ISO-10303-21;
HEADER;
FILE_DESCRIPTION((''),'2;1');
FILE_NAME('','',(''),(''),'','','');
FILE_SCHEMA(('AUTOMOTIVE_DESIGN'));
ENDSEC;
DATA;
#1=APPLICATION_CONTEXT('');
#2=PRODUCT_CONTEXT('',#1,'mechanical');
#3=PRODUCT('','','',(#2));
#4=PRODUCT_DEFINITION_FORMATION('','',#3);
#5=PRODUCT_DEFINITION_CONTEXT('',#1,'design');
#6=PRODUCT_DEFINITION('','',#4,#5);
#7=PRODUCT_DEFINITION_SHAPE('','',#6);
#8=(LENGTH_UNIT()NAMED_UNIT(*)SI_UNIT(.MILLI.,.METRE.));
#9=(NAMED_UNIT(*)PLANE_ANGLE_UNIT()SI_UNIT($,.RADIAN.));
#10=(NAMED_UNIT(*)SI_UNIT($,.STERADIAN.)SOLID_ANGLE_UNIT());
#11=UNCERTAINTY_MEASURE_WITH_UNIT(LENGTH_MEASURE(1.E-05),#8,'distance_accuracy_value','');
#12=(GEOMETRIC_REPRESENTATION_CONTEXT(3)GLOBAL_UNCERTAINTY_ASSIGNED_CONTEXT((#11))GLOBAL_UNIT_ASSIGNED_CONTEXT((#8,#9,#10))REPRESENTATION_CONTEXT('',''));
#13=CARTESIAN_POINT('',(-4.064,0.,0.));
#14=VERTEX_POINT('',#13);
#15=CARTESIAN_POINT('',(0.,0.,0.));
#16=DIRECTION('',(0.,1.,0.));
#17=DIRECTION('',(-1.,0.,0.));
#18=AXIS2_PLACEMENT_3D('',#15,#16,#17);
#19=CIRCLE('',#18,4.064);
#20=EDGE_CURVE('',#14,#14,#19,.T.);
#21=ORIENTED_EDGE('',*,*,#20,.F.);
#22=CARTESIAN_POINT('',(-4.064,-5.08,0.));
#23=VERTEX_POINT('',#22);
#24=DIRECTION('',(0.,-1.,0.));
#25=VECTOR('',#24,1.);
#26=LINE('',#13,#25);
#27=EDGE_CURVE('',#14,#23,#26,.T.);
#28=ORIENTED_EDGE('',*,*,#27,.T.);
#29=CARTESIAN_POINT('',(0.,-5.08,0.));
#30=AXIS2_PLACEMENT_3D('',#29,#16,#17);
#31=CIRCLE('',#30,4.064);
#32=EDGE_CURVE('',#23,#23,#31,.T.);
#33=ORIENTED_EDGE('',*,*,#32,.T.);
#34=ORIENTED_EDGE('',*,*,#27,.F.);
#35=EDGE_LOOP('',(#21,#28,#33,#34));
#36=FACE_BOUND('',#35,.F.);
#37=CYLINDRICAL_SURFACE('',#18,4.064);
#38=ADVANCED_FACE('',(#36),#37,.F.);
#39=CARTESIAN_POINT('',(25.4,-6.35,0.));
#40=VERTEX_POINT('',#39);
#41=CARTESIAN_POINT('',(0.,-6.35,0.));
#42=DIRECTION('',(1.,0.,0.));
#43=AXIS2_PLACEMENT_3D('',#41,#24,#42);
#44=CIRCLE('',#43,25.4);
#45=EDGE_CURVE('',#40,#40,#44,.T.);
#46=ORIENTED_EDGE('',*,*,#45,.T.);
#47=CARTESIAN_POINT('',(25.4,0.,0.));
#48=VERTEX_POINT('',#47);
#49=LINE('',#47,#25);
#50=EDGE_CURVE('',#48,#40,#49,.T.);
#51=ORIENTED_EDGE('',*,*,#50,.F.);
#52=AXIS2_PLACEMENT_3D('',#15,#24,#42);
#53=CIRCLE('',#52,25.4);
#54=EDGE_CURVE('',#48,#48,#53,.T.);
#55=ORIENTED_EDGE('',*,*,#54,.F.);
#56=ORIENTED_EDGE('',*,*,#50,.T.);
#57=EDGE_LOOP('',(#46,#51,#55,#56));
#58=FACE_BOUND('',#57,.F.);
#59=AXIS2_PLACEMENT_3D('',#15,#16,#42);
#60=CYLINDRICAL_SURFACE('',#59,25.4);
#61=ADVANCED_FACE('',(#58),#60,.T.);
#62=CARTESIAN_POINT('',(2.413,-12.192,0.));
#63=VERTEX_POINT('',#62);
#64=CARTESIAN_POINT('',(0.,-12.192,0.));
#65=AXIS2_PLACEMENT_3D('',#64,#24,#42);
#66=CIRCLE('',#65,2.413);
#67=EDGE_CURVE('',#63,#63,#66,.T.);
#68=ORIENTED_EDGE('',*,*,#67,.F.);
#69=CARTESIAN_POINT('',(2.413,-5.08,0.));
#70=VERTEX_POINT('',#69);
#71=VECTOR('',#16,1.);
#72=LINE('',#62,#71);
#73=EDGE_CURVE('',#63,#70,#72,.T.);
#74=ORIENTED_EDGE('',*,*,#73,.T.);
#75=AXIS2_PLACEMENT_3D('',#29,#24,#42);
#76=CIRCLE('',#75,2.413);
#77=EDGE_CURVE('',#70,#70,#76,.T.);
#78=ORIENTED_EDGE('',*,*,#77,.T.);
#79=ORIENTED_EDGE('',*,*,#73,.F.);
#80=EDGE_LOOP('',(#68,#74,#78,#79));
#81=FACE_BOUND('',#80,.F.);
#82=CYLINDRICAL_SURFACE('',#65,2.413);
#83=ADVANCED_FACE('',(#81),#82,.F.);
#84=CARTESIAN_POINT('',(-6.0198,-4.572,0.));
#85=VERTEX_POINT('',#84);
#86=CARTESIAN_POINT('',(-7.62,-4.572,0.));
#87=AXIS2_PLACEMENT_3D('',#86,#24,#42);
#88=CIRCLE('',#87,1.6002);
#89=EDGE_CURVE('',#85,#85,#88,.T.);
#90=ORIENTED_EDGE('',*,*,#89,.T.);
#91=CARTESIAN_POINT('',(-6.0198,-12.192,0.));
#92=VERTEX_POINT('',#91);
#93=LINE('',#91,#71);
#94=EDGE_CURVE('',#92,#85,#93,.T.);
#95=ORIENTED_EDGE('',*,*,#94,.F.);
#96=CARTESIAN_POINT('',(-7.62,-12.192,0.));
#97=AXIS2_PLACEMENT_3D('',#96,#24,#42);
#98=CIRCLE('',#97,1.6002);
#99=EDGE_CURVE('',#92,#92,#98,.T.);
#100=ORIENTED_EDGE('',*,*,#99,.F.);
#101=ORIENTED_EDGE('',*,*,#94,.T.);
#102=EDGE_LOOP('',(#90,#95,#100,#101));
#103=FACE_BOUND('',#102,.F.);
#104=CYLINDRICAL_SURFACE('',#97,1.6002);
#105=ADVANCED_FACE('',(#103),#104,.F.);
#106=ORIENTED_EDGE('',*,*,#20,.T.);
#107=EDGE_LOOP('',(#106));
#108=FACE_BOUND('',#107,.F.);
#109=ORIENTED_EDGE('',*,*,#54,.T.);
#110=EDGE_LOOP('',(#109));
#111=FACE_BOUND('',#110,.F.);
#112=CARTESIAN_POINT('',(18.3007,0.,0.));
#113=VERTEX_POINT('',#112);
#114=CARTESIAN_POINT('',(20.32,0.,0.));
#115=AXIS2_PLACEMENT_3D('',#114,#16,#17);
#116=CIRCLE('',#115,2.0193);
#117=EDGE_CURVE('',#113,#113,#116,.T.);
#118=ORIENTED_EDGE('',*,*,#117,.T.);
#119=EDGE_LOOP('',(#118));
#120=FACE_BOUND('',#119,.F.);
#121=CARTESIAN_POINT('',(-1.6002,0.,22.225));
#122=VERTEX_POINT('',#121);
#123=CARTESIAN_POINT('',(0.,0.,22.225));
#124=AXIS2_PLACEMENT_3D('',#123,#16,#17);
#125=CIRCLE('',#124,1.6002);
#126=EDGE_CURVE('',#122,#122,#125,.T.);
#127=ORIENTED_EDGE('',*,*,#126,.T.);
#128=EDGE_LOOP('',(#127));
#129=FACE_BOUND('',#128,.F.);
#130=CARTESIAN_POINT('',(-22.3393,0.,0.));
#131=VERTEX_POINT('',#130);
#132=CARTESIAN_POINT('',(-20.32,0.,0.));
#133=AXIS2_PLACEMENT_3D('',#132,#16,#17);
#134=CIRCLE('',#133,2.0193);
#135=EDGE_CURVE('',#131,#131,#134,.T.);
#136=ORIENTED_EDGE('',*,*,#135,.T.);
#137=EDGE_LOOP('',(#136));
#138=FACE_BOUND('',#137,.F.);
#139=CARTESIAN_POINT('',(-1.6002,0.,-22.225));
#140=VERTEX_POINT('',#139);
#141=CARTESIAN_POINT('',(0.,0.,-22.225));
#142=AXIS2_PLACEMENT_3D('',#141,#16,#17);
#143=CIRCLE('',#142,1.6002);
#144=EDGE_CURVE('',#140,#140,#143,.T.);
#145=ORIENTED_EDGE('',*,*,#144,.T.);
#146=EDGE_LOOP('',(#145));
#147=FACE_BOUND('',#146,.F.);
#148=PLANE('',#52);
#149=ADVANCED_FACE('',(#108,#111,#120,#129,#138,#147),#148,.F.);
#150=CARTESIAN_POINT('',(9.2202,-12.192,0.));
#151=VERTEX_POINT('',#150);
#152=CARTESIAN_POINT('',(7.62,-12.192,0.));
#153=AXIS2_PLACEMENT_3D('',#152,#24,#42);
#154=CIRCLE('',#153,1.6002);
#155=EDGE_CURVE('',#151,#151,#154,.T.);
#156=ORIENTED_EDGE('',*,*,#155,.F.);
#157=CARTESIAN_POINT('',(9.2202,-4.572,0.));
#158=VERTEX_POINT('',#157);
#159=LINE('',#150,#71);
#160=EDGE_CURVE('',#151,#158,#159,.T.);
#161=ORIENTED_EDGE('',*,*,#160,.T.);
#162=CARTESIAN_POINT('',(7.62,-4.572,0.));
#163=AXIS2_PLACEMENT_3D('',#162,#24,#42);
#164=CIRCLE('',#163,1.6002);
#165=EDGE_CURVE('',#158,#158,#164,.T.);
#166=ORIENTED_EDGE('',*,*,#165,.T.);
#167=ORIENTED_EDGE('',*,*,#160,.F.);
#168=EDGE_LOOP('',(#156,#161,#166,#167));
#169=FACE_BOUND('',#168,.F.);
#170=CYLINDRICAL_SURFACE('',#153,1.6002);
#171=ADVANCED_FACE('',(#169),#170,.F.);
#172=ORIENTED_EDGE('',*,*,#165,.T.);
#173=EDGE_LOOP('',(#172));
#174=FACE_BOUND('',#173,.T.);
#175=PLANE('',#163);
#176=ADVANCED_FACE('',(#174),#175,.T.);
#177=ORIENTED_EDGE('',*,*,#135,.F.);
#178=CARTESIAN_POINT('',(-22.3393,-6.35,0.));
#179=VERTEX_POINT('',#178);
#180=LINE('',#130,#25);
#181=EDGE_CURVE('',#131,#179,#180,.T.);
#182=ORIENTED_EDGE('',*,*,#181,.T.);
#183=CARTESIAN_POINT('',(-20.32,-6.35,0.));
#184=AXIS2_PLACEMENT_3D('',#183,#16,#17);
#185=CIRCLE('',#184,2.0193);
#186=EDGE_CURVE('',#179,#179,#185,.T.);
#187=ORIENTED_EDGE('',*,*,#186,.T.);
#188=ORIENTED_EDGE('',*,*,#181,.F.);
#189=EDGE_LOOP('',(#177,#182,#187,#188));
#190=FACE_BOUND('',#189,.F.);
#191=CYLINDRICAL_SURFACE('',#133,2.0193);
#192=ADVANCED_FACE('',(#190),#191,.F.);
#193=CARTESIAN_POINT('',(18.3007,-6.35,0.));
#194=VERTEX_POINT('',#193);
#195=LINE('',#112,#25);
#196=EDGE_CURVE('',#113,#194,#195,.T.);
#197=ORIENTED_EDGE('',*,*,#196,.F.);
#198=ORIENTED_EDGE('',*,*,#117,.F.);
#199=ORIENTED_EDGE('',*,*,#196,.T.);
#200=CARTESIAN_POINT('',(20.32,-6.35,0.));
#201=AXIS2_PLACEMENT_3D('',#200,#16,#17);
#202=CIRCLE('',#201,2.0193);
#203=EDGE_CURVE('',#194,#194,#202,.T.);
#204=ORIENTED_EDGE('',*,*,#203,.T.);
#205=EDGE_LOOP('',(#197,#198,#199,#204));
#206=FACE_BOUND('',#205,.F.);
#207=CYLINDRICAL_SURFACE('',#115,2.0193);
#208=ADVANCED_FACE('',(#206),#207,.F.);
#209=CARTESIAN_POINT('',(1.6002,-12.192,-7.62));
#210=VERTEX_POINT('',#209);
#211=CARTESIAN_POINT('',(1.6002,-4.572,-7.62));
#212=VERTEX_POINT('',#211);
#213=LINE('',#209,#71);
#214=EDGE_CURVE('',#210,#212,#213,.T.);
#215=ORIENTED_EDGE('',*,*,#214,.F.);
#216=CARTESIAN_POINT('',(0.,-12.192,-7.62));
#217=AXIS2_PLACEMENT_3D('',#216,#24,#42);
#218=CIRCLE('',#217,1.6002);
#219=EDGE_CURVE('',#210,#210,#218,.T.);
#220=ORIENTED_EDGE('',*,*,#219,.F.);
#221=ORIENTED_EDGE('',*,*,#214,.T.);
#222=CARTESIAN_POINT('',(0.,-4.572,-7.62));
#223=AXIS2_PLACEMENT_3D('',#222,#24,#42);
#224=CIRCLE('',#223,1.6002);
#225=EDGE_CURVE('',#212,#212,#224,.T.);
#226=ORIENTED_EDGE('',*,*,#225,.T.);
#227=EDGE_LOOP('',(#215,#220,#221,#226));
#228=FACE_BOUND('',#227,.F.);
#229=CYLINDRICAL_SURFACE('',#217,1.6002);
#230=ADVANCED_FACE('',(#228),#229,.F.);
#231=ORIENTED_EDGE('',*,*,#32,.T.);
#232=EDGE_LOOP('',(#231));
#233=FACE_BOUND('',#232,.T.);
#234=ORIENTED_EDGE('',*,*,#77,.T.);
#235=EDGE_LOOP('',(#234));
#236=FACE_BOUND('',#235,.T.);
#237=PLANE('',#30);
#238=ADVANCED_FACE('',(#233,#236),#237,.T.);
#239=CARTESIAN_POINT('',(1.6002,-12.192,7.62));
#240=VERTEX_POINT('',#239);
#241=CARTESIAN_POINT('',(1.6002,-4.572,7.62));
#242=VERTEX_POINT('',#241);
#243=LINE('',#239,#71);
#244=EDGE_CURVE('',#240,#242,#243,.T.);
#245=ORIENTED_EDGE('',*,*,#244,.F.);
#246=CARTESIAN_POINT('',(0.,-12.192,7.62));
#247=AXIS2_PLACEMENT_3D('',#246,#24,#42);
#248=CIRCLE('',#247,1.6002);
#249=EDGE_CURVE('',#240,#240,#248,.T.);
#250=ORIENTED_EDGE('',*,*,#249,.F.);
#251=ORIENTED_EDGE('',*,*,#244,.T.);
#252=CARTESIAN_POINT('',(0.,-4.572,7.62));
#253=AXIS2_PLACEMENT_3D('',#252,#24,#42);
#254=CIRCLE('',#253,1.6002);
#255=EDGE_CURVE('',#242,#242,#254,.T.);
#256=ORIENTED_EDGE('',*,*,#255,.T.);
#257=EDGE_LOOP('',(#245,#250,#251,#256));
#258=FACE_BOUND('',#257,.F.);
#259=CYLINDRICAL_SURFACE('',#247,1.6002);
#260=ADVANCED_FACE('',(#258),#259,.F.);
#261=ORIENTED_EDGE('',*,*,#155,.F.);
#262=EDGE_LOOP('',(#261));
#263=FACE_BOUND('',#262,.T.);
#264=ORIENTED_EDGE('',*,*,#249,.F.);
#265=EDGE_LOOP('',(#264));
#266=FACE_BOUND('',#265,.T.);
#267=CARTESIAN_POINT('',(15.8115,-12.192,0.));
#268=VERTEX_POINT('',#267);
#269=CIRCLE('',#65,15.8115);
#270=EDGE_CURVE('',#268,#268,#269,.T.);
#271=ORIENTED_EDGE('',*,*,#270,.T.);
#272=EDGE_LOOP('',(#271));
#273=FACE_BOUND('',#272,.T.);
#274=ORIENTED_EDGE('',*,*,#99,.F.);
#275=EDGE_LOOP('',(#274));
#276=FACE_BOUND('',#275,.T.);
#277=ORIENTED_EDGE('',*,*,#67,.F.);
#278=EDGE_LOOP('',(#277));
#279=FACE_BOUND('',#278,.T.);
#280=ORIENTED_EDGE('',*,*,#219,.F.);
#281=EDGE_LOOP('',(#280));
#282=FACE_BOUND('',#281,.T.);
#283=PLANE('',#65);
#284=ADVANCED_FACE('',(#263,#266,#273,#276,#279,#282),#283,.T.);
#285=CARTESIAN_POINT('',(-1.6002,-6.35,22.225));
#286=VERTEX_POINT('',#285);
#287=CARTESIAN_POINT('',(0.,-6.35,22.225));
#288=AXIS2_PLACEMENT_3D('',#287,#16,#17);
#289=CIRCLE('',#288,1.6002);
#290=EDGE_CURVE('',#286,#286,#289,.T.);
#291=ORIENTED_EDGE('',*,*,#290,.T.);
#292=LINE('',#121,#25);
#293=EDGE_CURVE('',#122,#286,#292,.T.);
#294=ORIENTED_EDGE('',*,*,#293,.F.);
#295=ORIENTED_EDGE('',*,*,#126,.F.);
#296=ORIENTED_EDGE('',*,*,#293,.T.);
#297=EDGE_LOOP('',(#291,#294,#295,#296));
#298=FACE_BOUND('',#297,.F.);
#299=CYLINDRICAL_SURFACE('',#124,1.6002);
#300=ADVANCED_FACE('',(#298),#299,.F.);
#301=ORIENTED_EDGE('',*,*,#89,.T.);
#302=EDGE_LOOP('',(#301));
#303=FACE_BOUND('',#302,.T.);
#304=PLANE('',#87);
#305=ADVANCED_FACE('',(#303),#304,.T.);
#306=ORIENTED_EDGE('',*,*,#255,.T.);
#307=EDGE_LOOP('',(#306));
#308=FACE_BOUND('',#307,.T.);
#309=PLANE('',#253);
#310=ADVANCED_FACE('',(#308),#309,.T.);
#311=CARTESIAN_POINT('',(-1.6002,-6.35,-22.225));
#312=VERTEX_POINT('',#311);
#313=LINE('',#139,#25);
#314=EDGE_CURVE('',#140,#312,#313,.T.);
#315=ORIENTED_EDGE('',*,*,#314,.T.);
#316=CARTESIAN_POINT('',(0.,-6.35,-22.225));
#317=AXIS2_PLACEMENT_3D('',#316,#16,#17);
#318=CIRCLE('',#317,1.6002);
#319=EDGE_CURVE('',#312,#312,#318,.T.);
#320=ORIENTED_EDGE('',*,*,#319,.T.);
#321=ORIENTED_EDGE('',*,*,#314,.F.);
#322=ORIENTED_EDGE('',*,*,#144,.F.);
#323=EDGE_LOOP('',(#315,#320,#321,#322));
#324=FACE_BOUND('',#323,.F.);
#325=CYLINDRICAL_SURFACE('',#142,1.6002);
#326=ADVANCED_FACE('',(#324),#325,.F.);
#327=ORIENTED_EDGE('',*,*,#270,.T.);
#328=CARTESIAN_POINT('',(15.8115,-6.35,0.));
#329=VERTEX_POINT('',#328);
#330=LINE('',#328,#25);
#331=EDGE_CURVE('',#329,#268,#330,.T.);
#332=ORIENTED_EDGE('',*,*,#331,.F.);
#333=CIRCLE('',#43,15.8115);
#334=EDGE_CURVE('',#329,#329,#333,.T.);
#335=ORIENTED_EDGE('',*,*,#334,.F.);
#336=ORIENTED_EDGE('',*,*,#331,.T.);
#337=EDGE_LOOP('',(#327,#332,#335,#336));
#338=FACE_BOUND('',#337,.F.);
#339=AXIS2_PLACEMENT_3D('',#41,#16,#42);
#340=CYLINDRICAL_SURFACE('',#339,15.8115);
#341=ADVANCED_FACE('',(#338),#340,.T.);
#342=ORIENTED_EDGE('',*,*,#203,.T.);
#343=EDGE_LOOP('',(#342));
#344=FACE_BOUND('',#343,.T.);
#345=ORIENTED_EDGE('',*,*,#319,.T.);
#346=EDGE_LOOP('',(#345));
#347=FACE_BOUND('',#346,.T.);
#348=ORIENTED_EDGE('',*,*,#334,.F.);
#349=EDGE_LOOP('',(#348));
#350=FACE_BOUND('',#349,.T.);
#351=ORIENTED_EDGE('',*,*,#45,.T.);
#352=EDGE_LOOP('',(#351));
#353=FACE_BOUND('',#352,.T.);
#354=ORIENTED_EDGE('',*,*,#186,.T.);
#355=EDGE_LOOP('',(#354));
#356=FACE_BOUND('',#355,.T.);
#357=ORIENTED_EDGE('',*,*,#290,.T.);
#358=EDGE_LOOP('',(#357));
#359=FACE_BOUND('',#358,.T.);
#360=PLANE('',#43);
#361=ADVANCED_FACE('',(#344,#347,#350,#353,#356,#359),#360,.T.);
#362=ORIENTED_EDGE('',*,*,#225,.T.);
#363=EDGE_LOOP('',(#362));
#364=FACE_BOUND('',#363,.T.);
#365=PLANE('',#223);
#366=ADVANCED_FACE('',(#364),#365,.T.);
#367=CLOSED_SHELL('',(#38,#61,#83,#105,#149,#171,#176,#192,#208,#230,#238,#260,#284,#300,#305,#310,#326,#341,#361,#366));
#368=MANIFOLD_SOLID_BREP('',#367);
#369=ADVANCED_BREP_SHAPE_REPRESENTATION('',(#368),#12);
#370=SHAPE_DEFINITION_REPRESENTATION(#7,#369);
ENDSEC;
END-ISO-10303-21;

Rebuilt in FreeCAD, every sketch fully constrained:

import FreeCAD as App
import Part
import Sketcher

V = App.Vector
Q = App.Units.Quantity

doc = App.newDocument("Part")
body = doc.addObject("PartDesign::Body", "Body")

# Sketch on XZ plane
sketch1 = doc.addObject("Sketcher::SketchObject", "Sketch")
body.addObject(sketch1)
sketch1.AttachmentSupport = (doc.XZ_Plane, [""])
sketch1.MapMode = "FlatFace"
sketch1.addGeometry(Part.Circle(V(0, 0, 0), V(0, 0, 1), 25), False)
sketch1.addConstraint([
    Sketcher.Constraint("Coincident", 0, 3, -1, 1),
    Sketcher.Constraint("Diameter", 0, Q("2 in")),
])
pad1 = doc.addObject("PartDesign::Pad", "Pad")
body.addObject(pad1)
pad1.Profile = sketch1
pad1.Length = Q("0.25 in")

# Sketch on XZ plane
sketch2 = doc.addObject("Sketcher::SketchObject", "Sketch001")
body.addObject(sketch2)
sketch2.AttachmentSupport = (doc.XZ_Plane, [""])
sketch2.MapMode = "FlatFace"
sketch2.AttachmentOffset = App.Placement(V(0, 0, 0.25 * 25.4), App.Rotation())
sketch2.addGeometry(Part.Circle(V(0, 0, 0), V(0, 0, 1), 16), False)
sketch2.addConstraint([
    Sketcher.Constraint("Coincident", 0, 3, -1, 1),
    Sketcher.Constraint("Diameter", 0, Q("1.245 in")),
])
pad2 = doc.addObject("PartDesign::Pad", "Pad001")
body.addObject(pad2)
pad2.Profile = sketch2
pad2.Length = Q("0.23 in")

# Sketch on XZ plane
sketch3 = doc.addObject("Sketcher::SketchObject", "Sketch002")
body.addObject(sketch3)
sketch3.AttachmentSupport = (doc.XZ_Plane, [""])
sketch3.MapMode = "FlatFace"
sketch3.AttachmentOffset = App.Placement(V(0, 0, 0.48 * 25.4), App.Rotation())
sketch3.addGeometry([
    Part.Circle(V(7.6, 0, 0), V(0, 0, 1), 1.6),  # 0
    Part.Circle(V(0, 7.6, 0), V(0, 0, 1), 1.6),  # 1
    Part.Circle(V(-7.6, 0, 0), V(0, 0, 1), 1.6),  # 2
    Part.Circle(V(0, -7.6, 0), V(0, 0, 1), 1.6),  # 3
    Part.Circle(V(0, 0, 0), V(0, 0, 1), 2.4),  # 4
], False)
sketch3.addConstraint([
    Sketcher.Constraint("Coincident", 4, 3, -1, 1),
    Sketcher.Constraint("Equal", 0, 1),
    Sketcher.Constraint("Equal", 1, 2),
    Sketcher.Constraint("Equal", 2, 3),
    Sketcher.Constraint("Symmetric", 0, 3, 2, 3, -1, 1),
    Sketcher.Constraint("Symmetric", 1, 3, 3, 3, -1, 1),
    Sketcher.Constraint("PointOnObject", 0, 3, -1),
    Sketcher.Constraint("PointOnObject", 1, 3, -2),
    Sketcher.Constraint("Diameter", 4, Q("0.19 in")),
    Sketcher.Constraint("Diameter", 0, Q("0.126 in")),
    Sketcher.Constraint("DistanceX", -1, 1, 0, 3, Q("0.3 in")),
    Sketcher.Constraint("DistanceY", -1, 1, 1, 3, Q("0.3 in")),
])
pocket1 = doc.addObject("PartDesign::Pocket", "Pocket")
body.addObject(pocket1)
pocket1.Profile = sketch3
pocket1.Length = Q("0.3 in")

# Sketch on XZ plane
sketch4 = doc.addObject("Sketcher::SketchObject", "Sketch003")
body.addObject(sketch4)
sketch4.AttachmentSupport = (doc.XZ_Plane, [""])
sketch4.MapMode = "FlatFace"
sketch4.addGeometry(Part.Circle(V(0, 0, 0), V(0, 0, 1), 4.1), False)
sketch4.addConstraint([
    Sketcher.Constraint("Coincident", 0, 3, -1, 1),
    Sketcher.Constraint("Diameter", 0, Q("0.32 in")),
])
pocket2 = doc.addObject("PartDesign::Pocket", "Pocket001")
body.addObject(pocket2)
pocket2.Profile = sketch4
pocket2.Length = Q("0.2 in")
pocket2.Reversed = True

# Sketch on XZ plane
sketch5 = doc.addObject("Sketcher::SketchObject", "Sketch004")
body.addObject(sketch5)
sketch5.AttachmentSupport = (doc.XZ_Plane, [""])
sketch5.MapMode = "FlatFace"
sketch5.addGeometry([
    Part.Circle(V(0, 22.2, 0), V(0, 0, 1), 1.6),
    Part.Circle(V(-20.3, 0, 0), V(0, 0, 1), 2),
    Part.Circle(V(0, -22.2, 0), V(0, 0, 1), 1.6),
    Part.Circle(V(20.3, 0, 0), V(0, 0, 1), 2),
], False)
sketch5.addConstraint([
    Sketcher.Constraint("Equal", 0, 2),
    Sketcher.Constraint("Equal", 1, 3),
    Sketcher.Constraint("Symmetric", 0, 3, 2, 3, -1, 1),
    Sketcher.Constraint("Symmetric", 1, 3, 3, 3, -1, 1),
    Sketcher.Constraint("PointOnObject", 0, 3, -2),
    Sketcher.Constraint("PointOnObject", 1, 3, -1),
    Sketcher.Constraint("Diameter", 0, Q("0.126 in")),
    Sketcher.Constraint("Diameter", 1, Q("0.159 in")),
    Sketcher.Constraint("DistanceX", 1, 3, -1, 1, Q("0.8 in")),
    Sketcher.Constraint("DistanceY", 2, 3, 0, 3, Q("1.75 in")),
])
pocket3 = doc.addObject("PartDesign::Pocket", "Pocket002")
body.addObject(pocket3)
pocket3.Profile = sketch5
pocket3.Type = "ThroughAll"
pocket3.Reversed = True

doc.recompute()
